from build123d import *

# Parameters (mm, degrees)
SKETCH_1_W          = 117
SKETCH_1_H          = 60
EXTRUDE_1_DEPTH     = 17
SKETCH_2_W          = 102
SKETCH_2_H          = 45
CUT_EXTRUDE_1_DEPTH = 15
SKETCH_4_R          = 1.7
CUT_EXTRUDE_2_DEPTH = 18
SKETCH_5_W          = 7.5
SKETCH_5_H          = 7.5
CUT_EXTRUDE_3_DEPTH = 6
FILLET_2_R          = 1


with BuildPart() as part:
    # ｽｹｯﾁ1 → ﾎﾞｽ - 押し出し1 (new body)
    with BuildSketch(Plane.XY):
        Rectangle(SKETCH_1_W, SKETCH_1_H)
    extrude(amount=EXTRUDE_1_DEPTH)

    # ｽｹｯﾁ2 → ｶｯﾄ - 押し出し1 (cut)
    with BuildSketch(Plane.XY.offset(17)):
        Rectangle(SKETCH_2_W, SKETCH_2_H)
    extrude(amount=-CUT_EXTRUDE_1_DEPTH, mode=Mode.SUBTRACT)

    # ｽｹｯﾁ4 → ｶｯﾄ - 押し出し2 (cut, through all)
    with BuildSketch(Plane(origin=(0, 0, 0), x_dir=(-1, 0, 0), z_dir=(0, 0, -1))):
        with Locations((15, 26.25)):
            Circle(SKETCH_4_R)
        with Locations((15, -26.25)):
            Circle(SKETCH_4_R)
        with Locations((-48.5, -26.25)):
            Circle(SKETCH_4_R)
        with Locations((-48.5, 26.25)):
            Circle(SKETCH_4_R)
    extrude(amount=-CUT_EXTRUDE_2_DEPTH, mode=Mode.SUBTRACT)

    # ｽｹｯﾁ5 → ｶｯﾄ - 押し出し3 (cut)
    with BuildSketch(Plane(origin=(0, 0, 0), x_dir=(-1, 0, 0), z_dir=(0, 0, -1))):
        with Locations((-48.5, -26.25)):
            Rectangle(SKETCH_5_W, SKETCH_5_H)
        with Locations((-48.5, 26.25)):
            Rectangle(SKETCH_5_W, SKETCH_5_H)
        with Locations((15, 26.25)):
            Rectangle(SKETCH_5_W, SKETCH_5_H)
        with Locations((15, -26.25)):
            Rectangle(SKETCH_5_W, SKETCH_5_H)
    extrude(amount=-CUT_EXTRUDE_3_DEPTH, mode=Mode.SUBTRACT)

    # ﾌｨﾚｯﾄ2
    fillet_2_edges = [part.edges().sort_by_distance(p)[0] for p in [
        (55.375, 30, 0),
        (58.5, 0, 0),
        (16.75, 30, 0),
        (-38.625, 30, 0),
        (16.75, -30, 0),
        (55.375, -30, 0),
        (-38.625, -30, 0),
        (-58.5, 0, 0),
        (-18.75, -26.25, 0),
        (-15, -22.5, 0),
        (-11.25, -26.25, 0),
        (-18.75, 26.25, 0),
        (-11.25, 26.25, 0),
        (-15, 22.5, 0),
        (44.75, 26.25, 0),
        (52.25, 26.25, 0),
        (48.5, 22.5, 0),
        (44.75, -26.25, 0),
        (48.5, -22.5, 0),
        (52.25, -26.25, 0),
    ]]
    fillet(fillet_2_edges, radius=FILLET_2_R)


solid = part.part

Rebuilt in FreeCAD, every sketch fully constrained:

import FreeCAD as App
import Part
import Sketcher
Q = App.Units.Quantity


def edges_at(feature, points):
    """Names of the edges that pass closest to the given points."""
    edges = feature.Shape.Edges
    near = lambda p: min(range(len(edges)), key=lambda i: edges[i].distToShape(Part.Vertex(*p))[0])
    return sorted({f"Edge{near(p) + 1}" for p in points})


def add_polygon(sketch, points):
    """Adds a closed chain of lines whose ends are joined by coincident constraints."""
    first, n = sketch.GeometryCount, len(points)
    for a, b in zip(points, points[1:] + points[:1]):
        sketch.addGeometry(Part.LineSegment(App.Vector(*a, 0), App.Vector(*b, 0)), False)
    for i in range(n):
        sketch.addConstraint(Sketcher.Constraint("Coincident", first + i, 2, first + (i + 1) % n, 1))

doc = App.newDocument("Part")
body = doc.addObject("PartDesign::Body", "Body")

# Sketch on XY plane
sketch1 = body.newObject("Sketcher::SketchObject", "Sketch")
sketch1.AttachmentSupport = (doc.getObject("XY_Plane"), [""])
sketch1.MapMode = "FlatFace"
add_polygon(sketch1, [(-58, 30), (-58, -30), (58, -30), (58, 30)])  # lines 0-3
sketch1.addConstraint([
    Sketcher.Constraint("Vertical", 0),
    Sketcher.Constraint("Horizontal", 1),
    Sketcher.Constraint("Vertical", 2),
    Sketcher.Constraint("Horizontal", 3),
    Sketcher.Constraint("Symmetric", 0, 2, 2, 2, -1, 1),
    Sketcher.Constraint("DistanceX", 1, 1, 1, 2, Q("117 mm")),
    Sketcher.Constraint("DistanceY", 0, 2, 0, 1, Q("60 mm")),
])
pad1 = body.newObject("PartDesign::Pad", "Pad")
pad1.Profile = sketch1
pad1.Length = 17

# Sketch on XY plane
sketch2 = body.newObject("Sketcher::SketchObject", "Sketch001")
sketch2.AttachmentSupport = (doc.getObject("XY_Plane"), [""])
sketch2.MapMode = "FlatFace"
sketch2.AttachmentOffset = App.Placement(App.Vector(0, 0, 17), App.Rotation())
add_polygon(sketch2, [(-51, 22), (-51, -22), (51, -22), (51, 22)])  # lines 0-3
sketch2.addConstraint([
    Sketcher.Constraint("Vertical", 0),
    Sketcher.Constraint("Horizontal", 1),
    Sketcher.Constraint("Vertical", 2),
    Sketcher.Constraint("Horizontal", 3),
    Sketcher.Constraint("Symmetric", 0, 2, 2, 2, -1, 1),
    Sketcher.Constraint("DistanceX", 1, 1, 1, 2, Q("102 mm")),
    Sketcher.Constraint("DistanceY", 0, 2, 0, 1, Q("45 mm")),
])
pocket1 = body.newObject("PartDesign::Pocket", "Pocket")
pocket1.Profile = sketch2
pocket1.Length = 15

# Sketch on XY plane
sketch3 = body.newObject("Sketcher::SketchObject", "Sketch002")
sketch3.AttachmentSupport = (doc.getObject("XY_Plane"), [""])
sketch3.MapMode = "FlatFace"
sketch3.addGeometry([
    Part.Circle(App.Vector(-15, 26.2, 0), App.Vector(0, 0, 1), 1.7),
    Part.Circle(App.Vector(-15, -26.2, 0), App.Vector(0, 0, 1), 1.7),
    Part.Circle(App.Vector(48.5, -26.2, 0), App.Vector(0, 0, 1), 1.7),
    Part.Circle(App.Vector(48.5, 26.2, 0), App.Vector(0, 0, 1), 1.7),
], False)
sketch3.addConstraint([
    Sketcher.Constraint("Equal", 0, 1),
    Sketcher.Constraint("Equal", 1, 2),
    Sketcher.Constraint("Equal", 2, 3),
    Sketcher.Constraint("Symmetric", 0, 3, 1, 3, -1),
    Sketcher.Constraint("Symmetric", 2, 3, 3, 3, -1),
    Sketcher.Constraint("Horizontal", 1, 3, 2, 3),
    Sketcher.Constraint("Diameter", 0, Q("3.4 mm")),
    Sketcher.Constraint("DistanceX", 0, 3, -1, 1, Q("15 mm")),
    Sketcher.Constraint("DistanceX", -1, 1, 2, 3, Q("48.5 mm")),
    Sketcher.Constraint("DistanceY", 1, 3, 0, 3, Q("52.5 mm")),
])
pocket2 = body.newObject("PartDesign::Pocket", "Pocket001")
pocket2.Profile = sketch3
pocket2.Type = "ThroughAll"
pocket2.Reversed = True

# Sketch on XY plane
sketch4 = body.newObject("Sketcher::SketchObject", "Sketch003")
sketch4.AttachmentSupport = (doc.getObject("XY_Plane"), [""])
sketch4.MapMode = "FlatFace"
add_polygon(sketch4, [(52, -22), (52, -30), (45, -30), (45, -22)])  # lines 0-3
add_polygon(sketch4, [(52, 30), (52, 22), (45, 22), (45, 30)])  # lines 4-7
add_polygon(sketch4, [(-11, 30), (-11, 22), (-19, 22), (-19, 30)])  # lines 8-11
add_polygon(sketch4, [(-11, -22), (-11, -30), (-19, -30), (-19, -22)])  # lines 12-15
sketch4.addConstraint([
    Sketcher.Constraint("Vertical", 0),
    Sketcher.Constraint("Horizontal", 1),
    Sketcher.Constraint("Vertical", 2),
    Sketcher.Constraint("Horizontal", 3),
    Sketcher.Constraint("Vertical", 4),
    Sketcher.Constraint("Horizontal", 5),
    Sketcher.Constraint("Vertical", 6),
    Sketcher.Constraint("Horizontal", 7),
    Sketcher.Constraint("Vertical", 8),
    Sketcher.Constraint("Horizontal", 9),
    Sketcher.Constraint("Vertical", 10),
    Sketcher.Constraint("Horizontal", 11),
    Sketcher.Constraint("Vertical", 12),
    Sketcher.Constraint("Horizontal", 13),
    Sketcher.Constraint("Vertical", 14),
    Sketcher.Constraint("Horizontal", 15),
    Sketcher.Constraint("Symmetric", 3, 2, 4, 2, -1),
    Sketcher.Constraint("Symmetric", 1, 2, 6, 2, -1),
    Sketcher.Constraint("Symmetric", 11, 2, 12, 2, -1),
    Sketcher.Constraint("Symmetric", 9, 2, 14, 2, -1),
    Sketcher.Constraint("Horizontal", 5, 2, 8, 2),
    Sketcher.Constraint("Horizontal", 7, 2, 10, 2),
    Sketcher.Constraint("Equal", 7, 9),
    Sketcher.Constraint("Equal", 15, 0),
    Sketcher.Constraint("DistanceX", 1, 2, 1, 1, Q("7.5 mm")),
    Sketcher.Constraint("DistanceY", 0, 2, -1, 1, Q("30 mm")),
    Sketcher.Constraint("DistanceX", 8, 2, 5, 2, Q("56 mm")),
    Sketcher.Constraint("DistanceX", -1, 1, 0, 2, Q("52.25 mm")),
])
pocket3 = body.newObject("PartDesign::Pocket", "Pocket002")
pocket3.Profile = sketch4
pocket3.Length = 6
pocket3.Reversed = True
doc.recompute()

fillet = body.newObject("PartDesign::Fillet", "Fillet")
fillet.Base = (pocket3, edges_at(pocket3, [
    (55.375, 30, 0),
    (58.5, 0, 0),
    (16.75, 30, 0),
    (-38.625, 30, 0),
    (16.75, -30, 0),
    (55.375, -30, 0),
    (-38.625, -30, 0),
    (-58.5, 0, 0),
    (-18.75, -26.25, 0),
    (-15, -22.5, 0),
    (-11.25, -26.25, 0),
    (-18.75, 26.25, 0),
    (-11.25, 26.25, 0),
    (-15, 22.5, 0),
    (44.75, 26.25, 0),
    (52.25, 26.25, 0),
    (48.5, 22.5, 0),
    (44.75, -26.25, 0),
    (48.5, -22.5, 0),
    (52.25, -26.25, 0),
]))
fillet.Radius = 1

doc.recompute()
